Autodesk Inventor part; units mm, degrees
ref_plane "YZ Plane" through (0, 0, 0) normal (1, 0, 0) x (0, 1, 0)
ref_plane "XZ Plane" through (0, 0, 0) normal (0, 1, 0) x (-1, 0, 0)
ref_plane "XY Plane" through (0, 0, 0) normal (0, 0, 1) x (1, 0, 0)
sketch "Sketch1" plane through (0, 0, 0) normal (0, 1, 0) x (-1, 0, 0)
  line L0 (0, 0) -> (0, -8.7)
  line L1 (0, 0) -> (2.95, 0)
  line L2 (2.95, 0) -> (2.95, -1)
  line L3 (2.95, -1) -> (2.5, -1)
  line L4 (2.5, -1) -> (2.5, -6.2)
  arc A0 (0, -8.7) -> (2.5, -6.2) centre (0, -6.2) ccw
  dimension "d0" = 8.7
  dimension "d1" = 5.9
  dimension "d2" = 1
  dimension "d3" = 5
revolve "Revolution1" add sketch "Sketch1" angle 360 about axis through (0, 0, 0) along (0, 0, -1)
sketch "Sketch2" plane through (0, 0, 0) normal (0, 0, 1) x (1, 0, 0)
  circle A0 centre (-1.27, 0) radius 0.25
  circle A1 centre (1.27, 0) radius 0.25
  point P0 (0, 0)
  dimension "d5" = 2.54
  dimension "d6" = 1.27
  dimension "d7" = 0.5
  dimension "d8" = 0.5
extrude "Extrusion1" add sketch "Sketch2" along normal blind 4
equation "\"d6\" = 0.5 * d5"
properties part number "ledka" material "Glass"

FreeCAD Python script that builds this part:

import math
import FreeCAD as App
import Part
import Sketcher
from FreeCAD import Vector

doc = App.newDocument("Part")
params = doc.addObject("Spreadsheet::Sheet", "Params")
for row, (alias, value) in enumerate([
    ("sketch1_radius", "2.5 mm"),
    ("sketch1_height", "1 mm"),
    ("sketch1_height2", "8.7 mm"),
    ("sketch1_width", "2.95 mm"),
    ("revolution_angle", "360 deg"),
    ("sketch2_diameter", "0.5 mm"),
    ("pad1_length", "4 mm"),
], start=1):
    params.set(f"A{row}", alias)
    params.set(f"B{row}", "=" + value)
    params.setAlias(f"B{row}", alias)

body = doc.addObject("PartDesign::Body", "Body")

sketch1 = body.newObject("Sketcher::SketchObject", "Sketch")
sketch1.AttachmentSupport = (doc.getObject("XZ_Plane"), [""])
sketch1.MapMode = "FlatFace"
sketch1.addGeometry(Part.LineSegment(Vector(-2.95, 0, 0), Vector(0, 0, 0)), False)
sketch1.addGeometry(Part.LineSegment(Vector(0, 0, 0), Vector(0, -8.7, 0)), False)
sketch1.addGeometry(Part.ArcOfCircle(Part.Circle(Vector(0, -6.2, 0), Vector(0, 0, 1), 2.5), math.radians(180), math.radians(270)), False)
sketch1.addGeometry(Part.LineSegment(Vector(-2.5, -6.2, 0), Vector(-2.5, -1, 0)), False)
sketch1.addGeometry(Part.LineSegment(Vector(-2.5, -1, 0), Vector(-2.95, -1, 0)), False)
sketch1.addGeometry(Part.LineSegment(Vector(-2.95, -1, 0), Vector(-2.95, 0, 0)), False)
sketch1.addConstraint(Sketcher.Constraint("Coincident", 0, 2, 1, 1))
sketch1.addConstraint(Sketcher.Constraint("Coincident", 1, 2, 2, 2))
sketch1.addConstraint(Sketcher.Constraint("Tangent", 2, 1, 3, 1))
sketch1.addConstraint(Sketcher.Constraint("Coincident", 3, 2, 4, 1))
sketch1.addConstraint(Sketcher.Constraint("Coincident", 4, 2, 5, 1))
sketch1.addConstraint(Sketcher.Constraint("Coincident", 5, 2, 0, 1))
sketch1.addConstraint(Sketcher.Constraint("Horizontal", 0))
sketch1.addConstraint(Sketcher.Constraint("Vertical", 1))
sketch1.addConstraint(Sketcher.Constraint("Vertical", 3))
sketch1.addConstraint(Sketcher.Constraint("Horizontal", 4))
sketch1.addConstraint(Sketcher.Constraint("Vertical", 5))
sketch1.addConstraint(Sketcher.Constraint("Coincident", 0, 2, -1, 1))
sketch1.addConstraint(Sketcher.Constraint("PointOnObject", 2, 3, -2))
sketch1.addConstraint(Sketcher.Constraint("Radius", 2, 2.5))
sketch1.addConstraint(Sketcher.Constraint("DistanceY", 5, 1, 5, 2, 1.0))
sketch1.addConstraint(Sketcher.Constraint("DistanceY", 1, 2, 1, 1, 8.7))
sketch1.addConstraint(Sketcher.Constraint("DistanceX", 0, 1, 0, 2, 2.95))
sketch1.setExpression("Constraints[13]", "Params.sketch1_radius")
sketch1.setExpression("Constraints[14]", "Params.sketch1_height")
sketch1.setExpression("Constraints[15]", "Params.sketch1_height2")
sketch1.setExpression("Constraints[16]", "Params.sketch1_width")
revolution = body.newObject("PartDesign::Revolution", "Revolution")
revolution.Profile = sketch1
revolution.ReferenceAxis = (sketch1, ["V_Axis"])
revolution.setExpression("Angle", "Params.revolution_angle")

sketch2 = body.newObject("Sketcher::SketchObject", "Sketch001")
sketch2.AttachmentSupport = (doc.getObject("XY_Plane"), [""])
sketch2.MapMode = "FlatFace"
sketch2.addGeometry(Part.Circle(Vector(-1.27, 0, 0), Vector(0, 0, 1), 0.25), False)
sketch2.addGeometry(Part.Circle(Vector(1.27, 0, 0), Vector(0, 0, 1), 0.25), False)
sketch2.addConstraint(Sketcher.Constraint("Equal", 0, 1))
sketch2.addConstraint(Sketcher.Constraint("Symmetric", 0, 3, 1, 3, -1, 1))
sketch2.addConstraint(Sketcher.Constraint("PointOnObject", 0, 3, -1))
sketch2.addConstraint(Sketcher.Constraint("Diameter", 0, 0.5))
sketch2.addConstraint(Sketcher.Constraint("DistanceX", 0, 3, -1, 1, 1.27))
sketch2.setExpression("Constraints[3]", "Params.sketch2_diameter")
pad1 = body.newObject("PartDesign::Pad", "Pad")
pad1.Profile = sketch2
pad1.setExpression("Length", "Params.pad1_length")

doc.recompute()
